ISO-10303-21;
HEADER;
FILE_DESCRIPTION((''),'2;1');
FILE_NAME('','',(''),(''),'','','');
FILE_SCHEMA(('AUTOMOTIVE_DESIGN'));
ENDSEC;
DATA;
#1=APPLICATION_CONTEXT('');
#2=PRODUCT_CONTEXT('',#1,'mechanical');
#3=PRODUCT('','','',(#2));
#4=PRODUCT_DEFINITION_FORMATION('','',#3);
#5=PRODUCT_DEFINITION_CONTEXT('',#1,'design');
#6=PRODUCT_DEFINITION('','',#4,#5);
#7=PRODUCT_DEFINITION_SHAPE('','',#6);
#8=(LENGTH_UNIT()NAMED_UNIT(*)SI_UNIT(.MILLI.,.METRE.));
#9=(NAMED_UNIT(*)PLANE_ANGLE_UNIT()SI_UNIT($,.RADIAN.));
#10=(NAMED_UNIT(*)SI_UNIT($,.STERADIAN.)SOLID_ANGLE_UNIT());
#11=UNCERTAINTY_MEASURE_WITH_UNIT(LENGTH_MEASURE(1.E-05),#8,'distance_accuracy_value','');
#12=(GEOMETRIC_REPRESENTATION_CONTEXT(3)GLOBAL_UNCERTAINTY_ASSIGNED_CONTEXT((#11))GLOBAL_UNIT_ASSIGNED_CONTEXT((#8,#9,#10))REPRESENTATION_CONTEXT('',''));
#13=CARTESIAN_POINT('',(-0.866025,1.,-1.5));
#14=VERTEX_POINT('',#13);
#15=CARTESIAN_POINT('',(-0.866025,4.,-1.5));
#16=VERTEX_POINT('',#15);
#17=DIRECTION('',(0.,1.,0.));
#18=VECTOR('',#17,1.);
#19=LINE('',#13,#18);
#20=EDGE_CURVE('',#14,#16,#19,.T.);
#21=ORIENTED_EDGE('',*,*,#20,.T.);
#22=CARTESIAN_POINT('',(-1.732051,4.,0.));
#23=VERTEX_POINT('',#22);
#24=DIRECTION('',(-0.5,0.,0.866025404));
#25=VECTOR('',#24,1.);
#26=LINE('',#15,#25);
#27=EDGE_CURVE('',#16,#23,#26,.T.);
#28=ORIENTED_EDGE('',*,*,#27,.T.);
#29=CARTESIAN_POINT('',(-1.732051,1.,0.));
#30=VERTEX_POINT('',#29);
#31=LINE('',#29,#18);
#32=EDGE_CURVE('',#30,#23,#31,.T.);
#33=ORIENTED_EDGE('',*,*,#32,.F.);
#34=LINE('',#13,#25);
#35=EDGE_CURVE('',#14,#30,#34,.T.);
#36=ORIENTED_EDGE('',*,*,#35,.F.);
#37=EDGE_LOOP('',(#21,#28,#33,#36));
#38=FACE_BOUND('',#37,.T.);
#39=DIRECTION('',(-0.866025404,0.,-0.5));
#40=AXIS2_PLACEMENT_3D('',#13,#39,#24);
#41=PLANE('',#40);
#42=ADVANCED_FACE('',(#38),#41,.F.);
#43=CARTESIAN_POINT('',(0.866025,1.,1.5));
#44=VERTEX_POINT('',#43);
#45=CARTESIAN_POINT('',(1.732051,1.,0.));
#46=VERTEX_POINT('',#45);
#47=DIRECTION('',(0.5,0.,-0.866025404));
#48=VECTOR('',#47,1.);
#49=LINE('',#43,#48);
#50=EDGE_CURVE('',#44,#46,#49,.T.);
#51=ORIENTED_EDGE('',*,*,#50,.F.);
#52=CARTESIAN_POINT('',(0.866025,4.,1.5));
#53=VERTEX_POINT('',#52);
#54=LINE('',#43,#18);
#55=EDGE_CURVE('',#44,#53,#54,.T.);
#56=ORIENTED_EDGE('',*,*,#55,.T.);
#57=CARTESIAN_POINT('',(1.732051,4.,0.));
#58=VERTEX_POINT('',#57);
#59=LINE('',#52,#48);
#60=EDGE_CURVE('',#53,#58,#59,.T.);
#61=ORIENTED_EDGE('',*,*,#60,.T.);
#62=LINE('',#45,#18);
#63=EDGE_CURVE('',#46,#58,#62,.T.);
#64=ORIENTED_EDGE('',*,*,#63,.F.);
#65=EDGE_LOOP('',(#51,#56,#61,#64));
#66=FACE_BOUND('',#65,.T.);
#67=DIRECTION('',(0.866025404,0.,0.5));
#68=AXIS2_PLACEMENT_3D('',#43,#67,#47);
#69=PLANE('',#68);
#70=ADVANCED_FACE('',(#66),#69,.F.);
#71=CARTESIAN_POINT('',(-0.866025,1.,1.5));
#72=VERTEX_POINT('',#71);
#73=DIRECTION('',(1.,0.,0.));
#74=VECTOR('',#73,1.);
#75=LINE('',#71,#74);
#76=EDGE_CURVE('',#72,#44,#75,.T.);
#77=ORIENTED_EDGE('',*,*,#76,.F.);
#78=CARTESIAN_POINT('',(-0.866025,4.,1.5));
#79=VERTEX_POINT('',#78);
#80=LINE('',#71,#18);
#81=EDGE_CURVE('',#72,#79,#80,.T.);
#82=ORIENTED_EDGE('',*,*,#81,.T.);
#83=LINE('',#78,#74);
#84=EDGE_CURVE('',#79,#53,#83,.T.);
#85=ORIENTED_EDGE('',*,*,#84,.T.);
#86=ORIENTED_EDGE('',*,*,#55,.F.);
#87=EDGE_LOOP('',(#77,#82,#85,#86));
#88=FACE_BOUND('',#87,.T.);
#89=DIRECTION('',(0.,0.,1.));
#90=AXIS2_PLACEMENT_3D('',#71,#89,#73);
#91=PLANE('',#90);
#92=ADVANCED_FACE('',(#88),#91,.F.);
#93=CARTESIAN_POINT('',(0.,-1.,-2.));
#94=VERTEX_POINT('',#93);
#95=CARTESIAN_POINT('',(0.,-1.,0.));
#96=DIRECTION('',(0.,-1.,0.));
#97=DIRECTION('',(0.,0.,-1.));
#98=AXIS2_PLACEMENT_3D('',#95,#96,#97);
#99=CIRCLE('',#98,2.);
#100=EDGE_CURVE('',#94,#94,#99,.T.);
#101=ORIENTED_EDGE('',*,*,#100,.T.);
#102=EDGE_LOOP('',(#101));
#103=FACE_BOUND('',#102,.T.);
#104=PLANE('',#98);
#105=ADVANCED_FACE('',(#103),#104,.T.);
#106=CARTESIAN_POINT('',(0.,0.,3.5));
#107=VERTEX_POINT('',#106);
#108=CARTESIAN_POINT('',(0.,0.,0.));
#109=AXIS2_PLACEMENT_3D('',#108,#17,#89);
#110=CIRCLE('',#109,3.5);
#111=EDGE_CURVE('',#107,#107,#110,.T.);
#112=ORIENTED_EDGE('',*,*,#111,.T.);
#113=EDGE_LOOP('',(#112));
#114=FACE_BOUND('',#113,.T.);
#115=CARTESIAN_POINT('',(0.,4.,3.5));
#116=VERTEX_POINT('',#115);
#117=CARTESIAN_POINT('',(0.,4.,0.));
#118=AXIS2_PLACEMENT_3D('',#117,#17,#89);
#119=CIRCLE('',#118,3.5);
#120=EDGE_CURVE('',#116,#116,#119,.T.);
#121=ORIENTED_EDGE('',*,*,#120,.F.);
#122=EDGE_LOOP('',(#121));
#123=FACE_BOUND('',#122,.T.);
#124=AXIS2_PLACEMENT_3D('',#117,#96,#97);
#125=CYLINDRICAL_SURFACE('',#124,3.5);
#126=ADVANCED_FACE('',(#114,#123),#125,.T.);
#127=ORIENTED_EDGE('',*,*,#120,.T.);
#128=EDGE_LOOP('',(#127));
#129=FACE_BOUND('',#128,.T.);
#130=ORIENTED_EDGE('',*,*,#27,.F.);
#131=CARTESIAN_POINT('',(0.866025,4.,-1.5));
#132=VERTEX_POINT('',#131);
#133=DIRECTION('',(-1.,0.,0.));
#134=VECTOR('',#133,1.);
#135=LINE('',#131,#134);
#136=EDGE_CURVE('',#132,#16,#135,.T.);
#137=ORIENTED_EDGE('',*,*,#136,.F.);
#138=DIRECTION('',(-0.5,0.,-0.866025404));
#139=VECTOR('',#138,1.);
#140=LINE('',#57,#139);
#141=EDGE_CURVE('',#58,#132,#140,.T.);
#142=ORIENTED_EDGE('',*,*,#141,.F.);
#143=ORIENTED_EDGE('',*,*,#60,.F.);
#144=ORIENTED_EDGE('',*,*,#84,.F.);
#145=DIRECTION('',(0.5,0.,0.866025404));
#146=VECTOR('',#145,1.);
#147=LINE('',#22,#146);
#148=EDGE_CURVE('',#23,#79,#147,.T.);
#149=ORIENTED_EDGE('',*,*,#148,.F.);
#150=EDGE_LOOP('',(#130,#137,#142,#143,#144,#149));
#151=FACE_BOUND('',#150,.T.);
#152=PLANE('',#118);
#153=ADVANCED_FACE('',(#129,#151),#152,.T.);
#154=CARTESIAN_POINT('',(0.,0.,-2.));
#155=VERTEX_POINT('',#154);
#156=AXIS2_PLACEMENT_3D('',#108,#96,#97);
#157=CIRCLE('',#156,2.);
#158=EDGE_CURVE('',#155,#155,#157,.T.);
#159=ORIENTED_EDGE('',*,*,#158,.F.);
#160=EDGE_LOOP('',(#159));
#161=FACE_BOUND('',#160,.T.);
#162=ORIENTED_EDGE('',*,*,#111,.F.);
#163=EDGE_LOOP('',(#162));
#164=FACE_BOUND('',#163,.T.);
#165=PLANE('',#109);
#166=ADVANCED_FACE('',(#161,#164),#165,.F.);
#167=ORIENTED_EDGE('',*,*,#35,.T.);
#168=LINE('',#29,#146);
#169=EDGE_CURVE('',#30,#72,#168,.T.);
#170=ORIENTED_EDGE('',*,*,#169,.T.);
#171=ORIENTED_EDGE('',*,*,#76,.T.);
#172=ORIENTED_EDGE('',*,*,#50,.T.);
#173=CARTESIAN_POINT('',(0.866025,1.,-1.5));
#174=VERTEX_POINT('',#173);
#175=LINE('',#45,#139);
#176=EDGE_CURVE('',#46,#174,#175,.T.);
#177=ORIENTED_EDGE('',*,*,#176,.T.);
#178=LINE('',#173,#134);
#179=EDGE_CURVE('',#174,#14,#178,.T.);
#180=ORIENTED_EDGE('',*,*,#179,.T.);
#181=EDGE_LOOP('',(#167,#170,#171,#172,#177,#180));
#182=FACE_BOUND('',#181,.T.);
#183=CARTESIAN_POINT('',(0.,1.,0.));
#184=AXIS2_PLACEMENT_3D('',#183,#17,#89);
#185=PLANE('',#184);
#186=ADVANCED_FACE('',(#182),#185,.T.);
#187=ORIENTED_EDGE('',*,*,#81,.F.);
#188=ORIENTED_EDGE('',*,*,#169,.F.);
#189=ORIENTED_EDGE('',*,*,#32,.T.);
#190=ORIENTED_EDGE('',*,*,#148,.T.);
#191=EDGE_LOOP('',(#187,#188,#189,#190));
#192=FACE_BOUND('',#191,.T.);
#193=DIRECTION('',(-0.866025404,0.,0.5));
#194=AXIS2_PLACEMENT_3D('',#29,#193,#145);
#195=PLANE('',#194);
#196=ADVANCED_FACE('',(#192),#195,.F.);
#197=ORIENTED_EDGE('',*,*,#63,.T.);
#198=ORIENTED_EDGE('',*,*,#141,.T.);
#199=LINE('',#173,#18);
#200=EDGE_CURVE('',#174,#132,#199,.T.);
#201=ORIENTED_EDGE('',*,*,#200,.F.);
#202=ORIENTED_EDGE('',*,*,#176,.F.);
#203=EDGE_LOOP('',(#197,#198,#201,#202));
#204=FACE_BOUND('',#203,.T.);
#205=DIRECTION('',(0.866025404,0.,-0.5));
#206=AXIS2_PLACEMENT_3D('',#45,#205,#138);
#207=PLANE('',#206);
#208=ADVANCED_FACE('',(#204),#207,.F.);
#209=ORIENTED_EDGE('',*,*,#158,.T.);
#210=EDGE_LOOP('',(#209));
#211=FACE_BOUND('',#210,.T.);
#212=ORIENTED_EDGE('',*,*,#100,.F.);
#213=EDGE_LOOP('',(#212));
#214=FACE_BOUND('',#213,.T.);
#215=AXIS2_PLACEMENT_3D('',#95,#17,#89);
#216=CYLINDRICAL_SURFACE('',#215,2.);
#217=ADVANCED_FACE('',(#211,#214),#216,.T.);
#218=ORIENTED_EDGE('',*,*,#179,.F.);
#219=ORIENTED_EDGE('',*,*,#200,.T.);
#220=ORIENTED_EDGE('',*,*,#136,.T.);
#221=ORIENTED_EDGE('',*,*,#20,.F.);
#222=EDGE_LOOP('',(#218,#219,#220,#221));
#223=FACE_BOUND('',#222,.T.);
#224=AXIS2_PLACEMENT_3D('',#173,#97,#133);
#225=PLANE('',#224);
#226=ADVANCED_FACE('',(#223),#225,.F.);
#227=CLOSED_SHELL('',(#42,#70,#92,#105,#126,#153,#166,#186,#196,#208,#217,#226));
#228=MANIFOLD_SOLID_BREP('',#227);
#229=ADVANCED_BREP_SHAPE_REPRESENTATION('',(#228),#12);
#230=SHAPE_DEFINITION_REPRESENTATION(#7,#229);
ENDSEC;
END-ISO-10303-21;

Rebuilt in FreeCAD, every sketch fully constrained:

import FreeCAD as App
import Part
import Sketcher
from FreeCAD import Vector
Q = App.Units.Quantity

doc = App.newDocument("Part")
params = doc.addObject("Spreadsheet::Sheet", "Params")
for row, (alias, value) in enumerate([
    ("sketch1_diameter", "7 mm"),
    ("pad1_length", "4 mm"),
    ("sketch2_diameter", "4 mm"),
    ("pad2_length", "1 mm"),
    ("pocket1_length", "3 mm"),
], start=1):
    params.set(f"A{row}", alias)
    params.set(f"B{row}", "=" + value)
    params.setAlias(f"B{row}", alias)

body = doc.addObject("PartDesign::Body", "Body")

sketch1 = body.newObject("Sketcher::SketchObject", "Sketch")
sketch1.AttachmentSupport = (doc.getObject("XZ_Plane"), [""])
sketch1.MapMode = "FlatFace"
sketch1.addGeometry(Part.Circle(Vector(0, 0, 0), Vector(0, 0, 1), 3.5), False)
sketch1.addConstraint([
    Sketcher.Constraint("Coincident", 0, 3, -1, 1),
    Sketcher.Constraint("Diameter", 0, Q("7 mm")),
])
sketch1.setExpression("Constraints[1]", "Params.sketch1_diameter")
pad1 = body.newObject("PartDesign::Pad", "Pad")
pad1.Profile = sketch1
pad1.setExpression("Length", "Params.pad1_length")
pad1.Reversed = True

sketch2 = body.newObject("Sketcher::SketchObject", "Sketch001")
sketch2.AttachmentSupport = (doc.getObject("XZ_Plane"), [""])
sketch2.MapMode = "FlatFace"
sketch2.addGeometry(Part.Circle(Vector(0, 0, 0), Vector(0, 0, 1), 2), False)
sketch2.addConstraint([
    Sketcher.Constraint("Coincident", 0, 3, -1, 1),
    Sketcher.Constraint("Diameter", 0, Q("4 mm")),
])
sketch2.setExpression("Constraints[1]", "Params.sketch2_diameter")
pad2 = body.newObject("PartDesign::Pad", "Pad001")
pad2.Profile = sketch2
pad2.setExpression("Length", "Params.pad2_length")

sketch3 = body.newObject("Sketcher::SketchObject", "Sketch002")
sketch3.AttachmentSupport = (doc.getObject("XZ_Plane"), [""])
sketch3.MapMode = "FlatFace"
sketch3.AttachmentOffset = App.Placement(Vector(0, 0, -4), App.Rotation())
sketch3.addGeometry([
    Part.LineSegment(Vector(1.7, 0, 0), Vector(0.9, -1.5, 0)),
    Part.LineSegment(Vector(0.9, -1.5, 0), Vector(-0.9, -1.5, 0)),
    Part.LineSegment(Vector(-0.9, -1.5, 0), Vector(-1.7, 0, 0)),
    Part.LineSegment(Vector(-1.7, 0, 0), Vector(-0.9, 1.5, 0)),
    Part.LineSegment(Vector(-0.9, 1.5, 0), Vector(0.9, 1.5, 0)),
    Part.LineSegment(Vector(0.9, 1.5, 0), Vector(1.7, 0, 0)),
], False)
sketch3.addConstraint([
    Sketcher.Constraint("Coincident", 0, 2, 1, 1),
    Sketcher.Constraint("Coincident", 1, 2, 2, 1),
    Sketcher.Constraint("Coincident", 2, 2, 3, 1),
    Sketcher.Constraint("Coincident", 3, 2, 4, 1),
    Sketcher.Constraint("Coincident", 4, 2, 5, 1),
    Sketcher.Constraint("Coincident", 5, 2, 0, 1),
    Sketcher.Constraint("Horizontal", 1),
    Sketcher.Constraint("Horizontal", 4),
    Sketcher.Constraint("Symmetric", 0, 2, 3, 2, -1, 1),
    Sketcher.Constraint("Symmetric", 2, 2, 5, 2, -1, 1),
    Sketcher.Constraint("PointOnObject", 2, 2, -1),
    Sketcher.Constraint("Parallel", 2, 5),
    Sketcher.Constraint("Vertical", 1, 2, 3, 2),
    Sketcher.Constraint("Angle", 0, Q("-120 deg")),
    Sketcher.Constraint("DistanceY", 1, 2, 3, 2, Q("3 mm")),
    Sketcher.Constraint("DistanceX", 1, 2, 1, 1, Q("1.732051 mm")),
])
pocket1 = body.newObject("PartDesign::Pocket", "Pocket")
pocket1.Profile = sketch3
pocket1.setExpression("Length", "Params.pocket1_length")
pocket1.Reversed = True

doc.recompute()
